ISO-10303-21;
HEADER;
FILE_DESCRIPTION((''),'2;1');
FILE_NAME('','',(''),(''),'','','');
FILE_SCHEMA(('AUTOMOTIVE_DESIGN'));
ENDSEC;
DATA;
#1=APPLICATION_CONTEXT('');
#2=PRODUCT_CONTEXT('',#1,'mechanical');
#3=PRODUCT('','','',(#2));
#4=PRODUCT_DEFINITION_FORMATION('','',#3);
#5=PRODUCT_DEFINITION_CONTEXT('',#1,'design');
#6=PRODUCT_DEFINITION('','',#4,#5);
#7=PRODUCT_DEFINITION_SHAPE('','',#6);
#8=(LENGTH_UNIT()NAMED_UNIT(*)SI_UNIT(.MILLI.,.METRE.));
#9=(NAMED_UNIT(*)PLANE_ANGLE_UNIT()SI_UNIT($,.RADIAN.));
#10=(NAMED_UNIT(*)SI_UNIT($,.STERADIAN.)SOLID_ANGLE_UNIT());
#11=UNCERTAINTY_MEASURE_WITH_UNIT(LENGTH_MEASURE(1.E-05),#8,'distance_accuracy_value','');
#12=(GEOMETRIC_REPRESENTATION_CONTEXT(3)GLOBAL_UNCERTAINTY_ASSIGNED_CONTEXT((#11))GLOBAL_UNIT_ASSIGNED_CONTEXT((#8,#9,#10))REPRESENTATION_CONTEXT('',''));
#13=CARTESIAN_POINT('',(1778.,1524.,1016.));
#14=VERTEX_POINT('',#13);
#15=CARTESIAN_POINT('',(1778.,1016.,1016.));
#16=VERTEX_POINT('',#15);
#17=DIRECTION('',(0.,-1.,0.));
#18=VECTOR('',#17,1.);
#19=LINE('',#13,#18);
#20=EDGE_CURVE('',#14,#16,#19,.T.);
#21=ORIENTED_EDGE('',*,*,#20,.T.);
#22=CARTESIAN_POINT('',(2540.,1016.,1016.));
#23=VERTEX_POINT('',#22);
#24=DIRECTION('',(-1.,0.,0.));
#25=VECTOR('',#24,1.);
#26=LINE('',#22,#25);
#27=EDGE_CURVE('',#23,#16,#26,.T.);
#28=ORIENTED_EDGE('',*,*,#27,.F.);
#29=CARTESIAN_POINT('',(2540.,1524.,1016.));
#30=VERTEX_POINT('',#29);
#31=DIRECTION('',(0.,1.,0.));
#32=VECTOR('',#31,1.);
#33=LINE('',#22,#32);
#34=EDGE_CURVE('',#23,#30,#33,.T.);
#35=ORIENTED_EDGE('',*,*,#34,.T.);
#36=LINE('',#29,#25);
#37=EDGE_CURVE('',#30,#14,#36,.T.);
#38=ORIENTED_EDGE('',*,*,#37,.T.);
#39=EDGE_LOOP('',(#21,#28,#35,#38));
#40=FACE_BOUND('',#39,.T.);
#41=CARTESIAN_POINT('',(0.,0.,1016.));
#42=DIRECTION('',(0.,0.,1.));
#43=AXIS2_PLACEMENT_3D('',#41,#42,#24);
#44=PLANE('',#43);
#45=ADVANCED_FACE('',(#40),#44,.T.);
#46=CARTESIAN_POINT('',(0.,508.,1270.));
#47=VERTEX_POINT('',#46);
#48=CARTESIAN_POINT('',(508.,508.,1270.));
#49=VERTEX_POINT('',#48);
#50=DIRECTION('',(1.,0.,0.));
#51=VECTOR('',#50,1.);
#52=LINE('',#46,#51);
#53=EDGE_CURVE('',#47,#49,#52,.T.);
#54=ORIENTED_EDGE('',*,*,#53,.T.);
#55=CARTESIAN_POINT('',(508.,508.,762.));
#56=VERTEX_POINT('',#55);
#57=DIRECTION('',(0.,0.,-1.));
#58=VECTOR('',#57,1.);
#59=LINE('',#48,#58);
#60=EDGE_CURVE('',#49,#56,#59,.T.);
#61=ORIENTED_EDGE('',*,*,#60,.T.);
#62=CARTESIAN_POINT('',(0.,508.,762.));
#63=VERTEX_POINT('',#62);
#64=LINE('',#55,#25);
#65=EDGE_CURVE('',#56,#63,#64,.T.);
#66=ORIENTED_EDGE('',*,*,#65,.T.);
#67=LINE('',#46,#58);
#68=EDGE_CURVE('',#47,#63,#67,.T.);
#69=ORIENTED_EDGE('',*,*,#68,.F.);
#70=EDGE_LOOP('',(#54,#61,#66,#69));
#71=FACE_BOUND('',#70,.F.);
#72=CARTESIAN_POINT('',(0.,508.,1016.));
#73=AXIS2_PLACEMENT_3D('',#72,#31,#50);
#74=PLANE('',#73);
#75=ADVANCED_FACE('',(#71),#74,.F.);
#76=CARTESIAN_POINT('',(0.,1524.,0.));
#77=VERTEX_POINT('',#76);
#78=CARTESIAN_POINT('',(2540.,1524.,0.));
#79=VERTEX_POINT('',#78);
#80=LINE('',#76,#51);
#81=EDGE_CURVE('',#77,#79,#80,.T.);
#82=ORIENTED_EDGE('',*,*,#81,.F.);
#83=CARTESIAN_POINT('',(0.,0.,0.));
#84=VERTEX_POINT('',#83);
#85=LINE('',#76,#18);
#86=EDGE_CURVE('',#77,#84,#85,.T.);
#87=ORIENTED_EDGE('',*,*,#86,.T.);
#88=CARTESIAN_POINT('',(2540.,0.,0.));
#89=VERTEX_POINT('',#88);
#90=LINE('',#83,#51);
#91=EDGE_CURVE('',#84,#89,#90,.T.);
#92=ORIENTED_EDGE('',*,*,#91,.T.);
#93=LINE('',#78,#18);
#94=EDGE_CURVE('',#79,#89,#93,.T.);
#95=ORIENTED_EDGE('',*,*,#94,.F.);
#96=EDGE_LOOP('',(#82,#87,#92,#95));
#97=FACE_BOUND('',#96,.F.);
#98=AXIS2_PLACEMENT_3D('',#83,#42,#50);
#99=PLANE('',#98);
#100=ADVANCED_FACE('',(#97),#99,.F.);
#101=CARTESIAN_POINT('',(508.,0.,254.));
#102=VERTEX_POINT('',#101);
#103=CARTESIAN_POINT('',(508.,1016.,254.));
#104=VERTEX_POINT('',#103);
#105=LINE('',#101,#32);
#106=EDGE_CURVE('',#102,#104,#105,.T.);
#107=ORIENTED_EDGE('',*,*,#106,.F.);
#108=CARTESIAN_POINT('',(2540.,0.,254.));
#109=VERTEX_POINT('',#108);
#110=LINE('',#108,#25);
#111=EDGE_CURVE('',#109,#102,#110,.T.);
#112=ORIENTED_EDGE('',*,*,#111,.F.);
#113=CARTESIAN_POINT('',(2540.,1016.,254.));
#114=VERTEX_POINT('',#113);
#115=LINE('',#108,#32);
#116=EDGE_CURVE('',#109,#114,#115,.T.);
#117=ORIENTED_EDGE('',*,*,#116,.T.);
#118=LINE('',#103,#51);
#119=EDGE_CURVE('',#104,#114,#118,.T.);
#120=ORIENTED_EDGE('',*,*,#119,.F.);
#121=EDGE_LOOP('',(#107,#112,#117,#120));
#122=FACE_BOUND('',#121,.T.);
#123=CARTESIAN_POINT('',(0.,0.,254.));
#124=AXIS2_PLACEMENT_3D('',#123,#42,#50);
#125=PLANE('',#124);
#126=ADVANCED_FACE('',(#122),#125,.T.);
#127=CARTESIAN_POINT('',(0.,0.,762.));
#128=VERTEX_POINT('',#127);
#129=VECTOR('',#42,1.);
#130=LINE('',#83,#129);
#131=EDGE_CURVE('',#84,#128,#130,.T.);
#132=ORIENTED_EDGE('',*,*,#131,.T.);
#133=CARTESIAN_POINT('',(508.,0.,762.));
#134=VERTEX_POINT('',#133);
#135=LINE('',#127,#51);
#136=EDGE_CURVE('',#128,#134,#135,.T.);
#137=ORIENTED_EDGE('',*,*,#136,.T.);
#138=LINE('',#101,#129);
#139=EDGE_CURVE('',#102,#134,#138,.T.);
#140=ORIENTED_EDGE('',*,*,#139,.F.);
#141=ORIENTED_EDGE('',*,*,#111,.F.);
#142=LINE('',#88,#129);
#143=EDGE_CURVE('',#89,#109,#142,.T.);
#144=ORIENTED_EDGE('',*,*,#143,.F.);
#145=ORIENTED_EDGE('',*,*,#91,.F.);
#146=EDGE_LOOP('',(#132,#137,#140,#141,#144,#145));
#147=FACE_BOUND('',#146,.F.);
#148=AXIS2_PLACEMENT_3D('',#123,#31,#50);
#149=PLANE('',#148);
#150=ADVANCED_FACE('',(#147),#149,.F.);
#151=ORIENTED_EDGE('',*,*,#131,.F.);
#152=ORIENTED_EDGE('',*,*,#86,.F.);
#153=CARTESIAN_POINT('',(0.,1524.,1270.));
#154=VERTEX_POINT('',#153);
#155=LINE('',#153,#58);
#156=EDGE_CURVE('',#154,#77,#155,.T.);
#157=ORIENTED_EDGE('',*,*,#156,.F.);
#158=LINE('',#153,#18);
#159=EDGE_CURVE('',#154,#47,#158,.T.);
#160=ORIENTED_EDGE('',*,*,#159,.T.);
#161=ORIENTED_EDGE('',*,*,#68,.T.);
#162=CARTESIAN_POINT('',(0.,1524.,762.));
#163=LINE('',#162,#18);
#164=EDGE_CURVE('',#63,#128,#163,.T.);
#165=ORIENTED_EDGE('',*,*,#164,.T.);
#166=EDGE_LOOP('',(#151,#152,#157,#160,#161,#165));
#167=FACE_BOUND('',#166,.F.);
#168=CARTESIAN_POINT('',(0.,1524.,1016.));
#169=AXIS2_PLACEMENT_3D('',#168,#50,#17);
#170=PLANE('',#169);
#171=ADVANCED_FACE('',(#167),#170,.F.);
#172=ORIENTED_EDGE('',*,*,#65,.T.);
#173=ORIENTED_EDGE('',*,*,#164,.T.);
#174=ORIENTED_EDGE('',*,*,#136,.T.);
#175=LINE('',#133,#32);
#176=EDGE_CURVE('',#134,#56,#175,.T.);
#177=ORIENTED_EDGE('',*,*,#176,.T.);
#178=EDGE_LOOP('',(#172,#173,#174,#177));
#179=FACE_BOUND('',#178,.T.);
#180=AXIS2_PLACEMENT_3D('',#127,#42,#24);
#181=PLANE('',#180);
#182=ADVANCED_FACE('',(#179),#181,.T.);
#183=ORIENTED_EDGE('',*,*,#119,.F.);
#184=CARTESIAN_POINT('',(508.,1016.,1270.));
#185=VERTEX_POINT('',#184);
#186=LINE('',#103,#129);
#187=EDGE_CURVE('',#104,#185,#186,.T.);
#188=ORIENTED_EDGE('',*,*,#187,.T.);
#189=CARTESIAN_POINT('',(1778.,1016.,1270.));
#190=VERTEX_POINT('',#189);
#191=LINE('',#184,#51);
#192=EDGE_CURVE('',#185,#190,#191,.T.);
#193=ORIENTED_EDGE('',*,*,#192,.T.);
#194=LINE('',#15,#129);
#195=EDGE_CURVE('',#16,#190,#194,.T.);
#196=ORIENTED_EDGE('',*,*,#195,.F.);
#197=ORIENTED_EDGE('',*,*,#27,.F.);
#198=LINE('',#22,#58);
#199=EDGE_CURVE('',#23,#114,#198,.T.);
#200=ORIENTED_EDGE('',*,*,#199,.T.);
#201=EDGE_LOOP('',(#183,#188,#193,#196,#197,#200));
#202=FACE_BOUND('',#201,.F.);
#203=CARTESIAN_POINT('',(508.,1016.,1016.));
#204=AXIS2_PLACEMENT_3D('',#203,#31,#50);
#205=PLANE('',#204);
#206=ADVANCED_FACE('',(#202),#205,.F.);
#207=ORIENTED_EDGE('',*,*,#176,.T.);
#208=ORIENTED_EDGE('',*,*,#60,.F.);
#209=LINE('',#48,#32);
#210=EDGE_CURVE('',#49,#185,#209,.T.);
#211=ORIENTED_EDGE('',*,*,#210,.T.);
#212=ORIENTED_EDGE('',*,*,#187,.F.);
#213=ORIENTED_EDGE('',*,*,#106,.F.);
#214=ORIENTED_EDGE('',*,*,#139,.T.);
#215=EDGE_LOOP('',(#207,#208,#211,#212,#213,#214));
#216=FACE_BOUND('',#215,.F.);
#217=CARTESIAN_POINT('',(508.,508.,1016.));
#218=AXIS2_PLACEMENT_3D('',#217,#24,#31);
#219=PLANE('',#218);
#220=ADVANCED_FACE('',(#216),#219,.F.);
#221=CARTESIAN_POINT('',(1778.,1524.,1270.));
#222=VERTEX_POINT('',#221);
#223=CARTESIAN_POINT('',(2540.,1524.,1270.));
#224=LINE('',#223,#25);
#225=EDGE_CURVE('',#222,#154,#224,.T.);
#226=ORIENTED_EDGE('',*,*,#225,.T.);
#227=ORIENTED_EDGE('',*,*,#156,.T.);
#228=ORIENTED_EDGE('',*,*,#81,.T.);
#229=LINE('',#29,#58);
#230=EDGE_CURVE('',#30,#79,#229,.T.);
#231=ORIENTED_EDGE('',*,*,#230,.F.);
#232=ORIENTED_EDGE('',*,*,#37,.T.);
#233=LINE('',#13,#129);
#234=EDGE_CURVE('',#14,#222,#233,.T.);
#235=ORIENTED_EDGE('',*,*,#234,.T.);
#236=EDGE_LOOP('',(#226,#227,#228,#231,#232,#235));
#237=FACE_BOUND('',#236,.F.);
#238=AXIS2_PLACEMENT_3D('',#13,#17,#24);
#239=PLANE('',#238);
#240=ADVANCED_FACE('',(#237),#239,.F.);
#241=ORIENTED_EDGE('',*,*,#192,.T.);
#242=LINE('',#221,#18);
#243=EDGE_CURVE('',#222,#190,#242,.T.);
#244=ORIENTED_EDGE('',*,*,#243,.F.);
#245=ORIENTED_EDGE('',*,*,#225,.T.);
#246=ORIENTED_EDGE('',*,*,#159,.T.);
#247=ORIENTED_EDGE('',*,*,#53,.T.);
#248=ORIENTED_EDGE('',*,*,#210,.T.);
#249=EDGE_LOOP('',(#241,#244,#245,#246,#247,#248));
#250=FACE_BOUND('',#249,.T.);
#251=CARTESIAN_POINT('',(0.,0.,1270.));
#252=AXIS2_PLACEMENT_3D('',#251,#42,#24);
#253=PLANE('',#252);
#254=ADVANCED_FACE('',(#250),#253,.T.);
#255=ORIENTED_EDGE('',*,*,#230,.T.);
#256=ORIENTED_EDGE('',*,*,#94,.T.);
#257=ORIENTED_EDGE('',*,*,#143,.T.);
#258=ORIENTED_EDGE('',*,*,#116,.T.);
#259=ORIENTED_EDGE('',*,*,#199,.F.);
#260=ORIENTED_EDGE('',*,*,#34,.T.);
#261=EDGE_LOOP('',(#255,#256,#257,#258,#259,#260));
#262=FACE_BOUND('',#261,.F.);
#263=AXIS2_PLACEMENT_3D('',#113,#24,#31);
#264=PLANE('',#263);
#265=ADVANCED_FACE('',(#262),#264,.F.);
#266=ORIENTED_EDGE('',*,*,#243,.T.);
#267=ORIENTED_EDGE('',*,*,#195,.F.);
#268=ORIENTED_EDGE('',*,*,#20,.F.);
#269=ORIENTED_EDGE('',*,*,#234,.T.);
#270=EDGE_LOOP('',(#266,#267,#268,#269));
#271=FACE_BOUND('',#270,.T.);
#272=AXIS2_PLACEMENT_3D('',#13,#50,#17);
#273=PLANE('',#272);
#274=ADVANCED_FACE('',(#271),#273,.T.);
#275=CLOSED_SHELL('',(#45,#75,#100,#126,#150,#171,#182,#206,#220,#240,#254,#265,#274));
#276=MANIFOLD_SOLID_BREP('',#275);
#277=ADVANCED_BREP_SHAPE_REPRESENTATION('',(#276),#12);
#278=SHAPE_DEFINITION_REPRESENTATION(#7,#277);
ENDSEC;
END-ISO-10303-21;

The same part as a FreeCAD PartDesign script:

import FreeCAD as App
import Part
import Sketcher

V = App.Vector
Q = App.Units.Quantity

doc = App.newDocument("Part")
body = doc.addObject("PartDesign::Body", "Body")

sketch1 = body.newObject("Sketcher::SketchObject", "Sketch")
sketch1.AttachmentSupport = (doc.getObject("XY_Plane"), [""])
sketch1.MapMode = "FlatFace"
sketch1.addGeometry([
    Part.LineSegment(V(0, 0, 0), V(2540, 0, 0)),
    Part.LineSegment(V(2540, 0, 0), V(2540, 1524, 0)),
    Part.LineSegment(V(2540, 1524, 0), V(0, 1524, 0)),
    Part.LineSegment(V(0, 1524, 0), V(0, 0, 0)),
], False)
sketch1.addConstraint([
    Sketcher.Constraint("Coincident", 0, 2, 1, 1),
    Sketcher.Constraint("Coincident", 1, 2, 2, 1),
    Sketcher.Constraint("Coincident", 2, 2, 3, 1),
    Sketcher.Constraint("Coincident", 3, 2, 0, 1),
    Sketcher.Constraint("Horizontal", 0),
    Sketcher.Constraint("Vertical", 1),
    Sketcher.Constraint("Horizontal", 2),
    Sketcher.Constraint("Vertical", 3),
    Sketcher.Constraint("Coincident", 3, 2, -1, 1),
    Sketcher.Constraint("DistanceX", 0, 1, 0, 2, Q("100 in")),
    Sketcher.Constraint("DistanceY", 1, 1, 1, 2, Q("60 in")),
])
pad1 = body.newObject("PartDesign::Pad", "Pad")
pad1.Profile = sketch1
pad1.Length = Q("10 in")

sketch2 = body.newObject("Sketcher::SketchObject", "Sketch001")
sketch2.AttachmentSupport = (doc.getObject("XY_Plane"), [""])
sketch2.MapMode = "FlatFace"
sketch2.AttachmentOffset = App.Placement(V(0, 0, 10 * 25.4), App.Rotation())
sketch2.addGeometry([
    Part.LineSegment(V(2540, 1524, 0), V(0, 1524, 0)),
    Part.LineSegment(V(0, 1524, 0), V(0, 0, 0)),
    Part.LineSegment(V(0, 0, 0), V(508, 0, 0)),
    Part.LineSegment(V(508, 0, 0), V(508, 1016, 0)),
    Part.LineSegment(V(508, 1016, 0), V(2540, 1016, 0)),
    Part.LineSegment(V(2540, 1016, 0), V(2540, 1524, 0)),
], False)
sketch2.addConstraint([
    Sketcher.Constraint("Coincident", 0, 2, 1, 1),
    Sketcher.Constraint("Coincident", 1, 2, 2, 1),
    Sketcher.Constraint("Coincident", 2, 2, 3, 1),
    Sketcher.Constraint("Coincident", 3, 2, 4, 1),
    Sketcher.Constraint("Coincident", 4, 2, 5, 1),
    Sketcher.Constraint("Coincident", 5, 2, 0, 1),
    Sketcher.Constraint("Horizontal", 0),
    Sketcher.Constraint("Vertical", 1),
    Sketcher.Constraint("Horizontal", 2),
    Sketcher.Constraint("Vertical", 3),
    Sketcher.Constraint("Horizontal", 4),
    Sketcher.Constraint("Vertical", 5),
    Sketcher.Constraint("Coincident", 1, 2, -1, 1),
    Sketcher.Constraint("Equal", 2, 5),
    Sketcher.Constraint("DistanceX", 2, 1, 2, 2, Q("20 in")),
    Sketcher.Constraint("DistanceX", 0, 2, 0, 1, Q("100 in")),
    Sketcher.Constraint("DistanceY", 1, 2, 1, 1, Q("60 in")),
])
pad2 = body.newObject("PartDesign::Pad", "Pad001")
pad2.Profile = sketch2
pad2.Length = Q("20 in")

sketch3 = body.newObject("Sketcher::SketchObject", "Sketch002")
sketch3.AttachmentSupport = (doc.getObject("XY_Plane"), [""])
sketch3.MapMode = "FlatFace"
sketch3.AttachmentOffset = App.Placement(V(0, 0, 30 * 25.4), App.Rotation())
sketch3.addGeometry([
    Part.LineSegment(V(508, 508, 0), V(508, 1016, 0)),
    Part.LineSegment(V(508, 1016, 0), V(2540, 1016, 0)),
    Part.LineSegment(V(2540, 1016, 0), V(2540, 1524, 0)),
    Part.LineSegment(V(2540, 1524, 0), V(0, 1524, 0)),
    Part.LineSegment(V(0, 1524, 0), V(0, 508, 0)),
    Part.LineSegment(V(0, 508, 0), V(508, 508, 0)),
], False)
sketch3.addConstraint([
    Sketcher.Constraint("Coincident", 0, 2, 1, 1),
    Sketcher.Constraint("Coincident", 1, 2, 2, 1),
    Sketcher.Constraint("Coincident", 2, 2, 3, 1),
    Sketcher.Constraint("Coincident", 3, 2, 4, 1),
    Sketcher.Constraint("Coincident", 4, 2, 5, 1),
    Sketcher.Constraint("Coincident", 5, 2, 0, 1),
    Sketcher.Constraint("Vertical", 0),
    Sketcher.Constraint("Horizontal", 1),
    Sketcher.Constraint("Vertical", 2),
    Sketcher.Constraint("Horizontal", 3),
    Sketcher.Constraint("Vertical", 4),
    Sketcher.Constraint("Horizontal", 5),
    Sketcher.Constraint("PointOnObject", 3, 2, -2),
    Sketcher.Constraint("Equal", 5, 0),
    Sketcher.Constraint("Equal", 0, 2),
    Sketcher.Constraint("DistanceX", 5, 1, 5, 2, Q("20 in")),
    Sketcher.Constraint("DistanceY", -1, 1, 4, 2, Q("20 in")),
    Sketcher.Constraint("DistanceX", 1, 1, 1, 2, Q("80 in")),
])
pad3 = body.newObject("PartDesign::Pad", "Pad002")
pad3.Profile = sketch3
pad3.Length = Q("10 in")

sketch4 = body.newObject("Sketcher::SketchObject", "Sketch003")
sketch4.AttachmentSupport = (doc.getObject("XY_Plane"), [""])
sketch4.MapMode = "FlatFace"
sketch4.AttachmentOffset = App.Placement(V(0, 0, 40 * 25.4), App.Rotation())
sketch4.addGeometry([
    Part.LineSegment(V(508, 508, 0), V(508, 1016, 0)),
    Part.LineSegment(V(508, 1016, 0), V(1778, 1016, 0)),
    Part.LineSegment(V(1778, 1016, 0), V(1778, 1524, 0)),
    Part.LineSegment(V(1778, 1524, 0), V(0, 1524, 0)),
    Part.LineSegment(V(0, 1524, 0), V(0, 508, 0)),
    Part.LineSegment(V(0, 508, 0), V(508, 508, 0)),
], False)
sketch4.addConstraint([
    Sketcher.Constraint("Coincident", 0, 2, 1, 1),
    Sketcher.Constraint("Coincident", 1, 2, 2, 1),
    Sketcher.Constraint("Coincident", 2, 2, 3, 1),
    Sketcher.Constraint("Coincident", 3, 2, 4, 1),
    Sketcher.Constraint("Coincident", 4, 2, 5, 1),
    Sketcher.Constraint("Coincident", 5, 2, 0, 1),
    Sketcher.Constraint("Vertical", 0),
    Sketcher.Constraint("Horizontal", 1),
    Sketcher.Constraint("Vertical", 2),
    Sketcher.Constraint("Horizontal", 3),
    Sketcher.Constraint("Vertical", 4),
    Sketcher.Constraint("Horizontal", 5),
    Sketcher.Constraint("PointOnObject", 3, 2, -2),
    Sketcher.Constraint("Equal", 5, 0),
    Sketcher.Constraint("Equal", 0, 2),
    Sketcher.Constraint("DistanceX", 1, 1, 1, 2, Q("50 in")),
    Sketcher.Constraint("DistanceX", 3, 2, 3, 1, Q("70 in")),
    Sketcher.Constraint("DistanceY", -1, 1, 0, 2, Q("40 in")),
])
pad4 = body.newObject("PartDesign::Pad", "Pad003")
pad4.Profile = sketch4
pad4.Length = Q("10 in")

doc.recompute()
